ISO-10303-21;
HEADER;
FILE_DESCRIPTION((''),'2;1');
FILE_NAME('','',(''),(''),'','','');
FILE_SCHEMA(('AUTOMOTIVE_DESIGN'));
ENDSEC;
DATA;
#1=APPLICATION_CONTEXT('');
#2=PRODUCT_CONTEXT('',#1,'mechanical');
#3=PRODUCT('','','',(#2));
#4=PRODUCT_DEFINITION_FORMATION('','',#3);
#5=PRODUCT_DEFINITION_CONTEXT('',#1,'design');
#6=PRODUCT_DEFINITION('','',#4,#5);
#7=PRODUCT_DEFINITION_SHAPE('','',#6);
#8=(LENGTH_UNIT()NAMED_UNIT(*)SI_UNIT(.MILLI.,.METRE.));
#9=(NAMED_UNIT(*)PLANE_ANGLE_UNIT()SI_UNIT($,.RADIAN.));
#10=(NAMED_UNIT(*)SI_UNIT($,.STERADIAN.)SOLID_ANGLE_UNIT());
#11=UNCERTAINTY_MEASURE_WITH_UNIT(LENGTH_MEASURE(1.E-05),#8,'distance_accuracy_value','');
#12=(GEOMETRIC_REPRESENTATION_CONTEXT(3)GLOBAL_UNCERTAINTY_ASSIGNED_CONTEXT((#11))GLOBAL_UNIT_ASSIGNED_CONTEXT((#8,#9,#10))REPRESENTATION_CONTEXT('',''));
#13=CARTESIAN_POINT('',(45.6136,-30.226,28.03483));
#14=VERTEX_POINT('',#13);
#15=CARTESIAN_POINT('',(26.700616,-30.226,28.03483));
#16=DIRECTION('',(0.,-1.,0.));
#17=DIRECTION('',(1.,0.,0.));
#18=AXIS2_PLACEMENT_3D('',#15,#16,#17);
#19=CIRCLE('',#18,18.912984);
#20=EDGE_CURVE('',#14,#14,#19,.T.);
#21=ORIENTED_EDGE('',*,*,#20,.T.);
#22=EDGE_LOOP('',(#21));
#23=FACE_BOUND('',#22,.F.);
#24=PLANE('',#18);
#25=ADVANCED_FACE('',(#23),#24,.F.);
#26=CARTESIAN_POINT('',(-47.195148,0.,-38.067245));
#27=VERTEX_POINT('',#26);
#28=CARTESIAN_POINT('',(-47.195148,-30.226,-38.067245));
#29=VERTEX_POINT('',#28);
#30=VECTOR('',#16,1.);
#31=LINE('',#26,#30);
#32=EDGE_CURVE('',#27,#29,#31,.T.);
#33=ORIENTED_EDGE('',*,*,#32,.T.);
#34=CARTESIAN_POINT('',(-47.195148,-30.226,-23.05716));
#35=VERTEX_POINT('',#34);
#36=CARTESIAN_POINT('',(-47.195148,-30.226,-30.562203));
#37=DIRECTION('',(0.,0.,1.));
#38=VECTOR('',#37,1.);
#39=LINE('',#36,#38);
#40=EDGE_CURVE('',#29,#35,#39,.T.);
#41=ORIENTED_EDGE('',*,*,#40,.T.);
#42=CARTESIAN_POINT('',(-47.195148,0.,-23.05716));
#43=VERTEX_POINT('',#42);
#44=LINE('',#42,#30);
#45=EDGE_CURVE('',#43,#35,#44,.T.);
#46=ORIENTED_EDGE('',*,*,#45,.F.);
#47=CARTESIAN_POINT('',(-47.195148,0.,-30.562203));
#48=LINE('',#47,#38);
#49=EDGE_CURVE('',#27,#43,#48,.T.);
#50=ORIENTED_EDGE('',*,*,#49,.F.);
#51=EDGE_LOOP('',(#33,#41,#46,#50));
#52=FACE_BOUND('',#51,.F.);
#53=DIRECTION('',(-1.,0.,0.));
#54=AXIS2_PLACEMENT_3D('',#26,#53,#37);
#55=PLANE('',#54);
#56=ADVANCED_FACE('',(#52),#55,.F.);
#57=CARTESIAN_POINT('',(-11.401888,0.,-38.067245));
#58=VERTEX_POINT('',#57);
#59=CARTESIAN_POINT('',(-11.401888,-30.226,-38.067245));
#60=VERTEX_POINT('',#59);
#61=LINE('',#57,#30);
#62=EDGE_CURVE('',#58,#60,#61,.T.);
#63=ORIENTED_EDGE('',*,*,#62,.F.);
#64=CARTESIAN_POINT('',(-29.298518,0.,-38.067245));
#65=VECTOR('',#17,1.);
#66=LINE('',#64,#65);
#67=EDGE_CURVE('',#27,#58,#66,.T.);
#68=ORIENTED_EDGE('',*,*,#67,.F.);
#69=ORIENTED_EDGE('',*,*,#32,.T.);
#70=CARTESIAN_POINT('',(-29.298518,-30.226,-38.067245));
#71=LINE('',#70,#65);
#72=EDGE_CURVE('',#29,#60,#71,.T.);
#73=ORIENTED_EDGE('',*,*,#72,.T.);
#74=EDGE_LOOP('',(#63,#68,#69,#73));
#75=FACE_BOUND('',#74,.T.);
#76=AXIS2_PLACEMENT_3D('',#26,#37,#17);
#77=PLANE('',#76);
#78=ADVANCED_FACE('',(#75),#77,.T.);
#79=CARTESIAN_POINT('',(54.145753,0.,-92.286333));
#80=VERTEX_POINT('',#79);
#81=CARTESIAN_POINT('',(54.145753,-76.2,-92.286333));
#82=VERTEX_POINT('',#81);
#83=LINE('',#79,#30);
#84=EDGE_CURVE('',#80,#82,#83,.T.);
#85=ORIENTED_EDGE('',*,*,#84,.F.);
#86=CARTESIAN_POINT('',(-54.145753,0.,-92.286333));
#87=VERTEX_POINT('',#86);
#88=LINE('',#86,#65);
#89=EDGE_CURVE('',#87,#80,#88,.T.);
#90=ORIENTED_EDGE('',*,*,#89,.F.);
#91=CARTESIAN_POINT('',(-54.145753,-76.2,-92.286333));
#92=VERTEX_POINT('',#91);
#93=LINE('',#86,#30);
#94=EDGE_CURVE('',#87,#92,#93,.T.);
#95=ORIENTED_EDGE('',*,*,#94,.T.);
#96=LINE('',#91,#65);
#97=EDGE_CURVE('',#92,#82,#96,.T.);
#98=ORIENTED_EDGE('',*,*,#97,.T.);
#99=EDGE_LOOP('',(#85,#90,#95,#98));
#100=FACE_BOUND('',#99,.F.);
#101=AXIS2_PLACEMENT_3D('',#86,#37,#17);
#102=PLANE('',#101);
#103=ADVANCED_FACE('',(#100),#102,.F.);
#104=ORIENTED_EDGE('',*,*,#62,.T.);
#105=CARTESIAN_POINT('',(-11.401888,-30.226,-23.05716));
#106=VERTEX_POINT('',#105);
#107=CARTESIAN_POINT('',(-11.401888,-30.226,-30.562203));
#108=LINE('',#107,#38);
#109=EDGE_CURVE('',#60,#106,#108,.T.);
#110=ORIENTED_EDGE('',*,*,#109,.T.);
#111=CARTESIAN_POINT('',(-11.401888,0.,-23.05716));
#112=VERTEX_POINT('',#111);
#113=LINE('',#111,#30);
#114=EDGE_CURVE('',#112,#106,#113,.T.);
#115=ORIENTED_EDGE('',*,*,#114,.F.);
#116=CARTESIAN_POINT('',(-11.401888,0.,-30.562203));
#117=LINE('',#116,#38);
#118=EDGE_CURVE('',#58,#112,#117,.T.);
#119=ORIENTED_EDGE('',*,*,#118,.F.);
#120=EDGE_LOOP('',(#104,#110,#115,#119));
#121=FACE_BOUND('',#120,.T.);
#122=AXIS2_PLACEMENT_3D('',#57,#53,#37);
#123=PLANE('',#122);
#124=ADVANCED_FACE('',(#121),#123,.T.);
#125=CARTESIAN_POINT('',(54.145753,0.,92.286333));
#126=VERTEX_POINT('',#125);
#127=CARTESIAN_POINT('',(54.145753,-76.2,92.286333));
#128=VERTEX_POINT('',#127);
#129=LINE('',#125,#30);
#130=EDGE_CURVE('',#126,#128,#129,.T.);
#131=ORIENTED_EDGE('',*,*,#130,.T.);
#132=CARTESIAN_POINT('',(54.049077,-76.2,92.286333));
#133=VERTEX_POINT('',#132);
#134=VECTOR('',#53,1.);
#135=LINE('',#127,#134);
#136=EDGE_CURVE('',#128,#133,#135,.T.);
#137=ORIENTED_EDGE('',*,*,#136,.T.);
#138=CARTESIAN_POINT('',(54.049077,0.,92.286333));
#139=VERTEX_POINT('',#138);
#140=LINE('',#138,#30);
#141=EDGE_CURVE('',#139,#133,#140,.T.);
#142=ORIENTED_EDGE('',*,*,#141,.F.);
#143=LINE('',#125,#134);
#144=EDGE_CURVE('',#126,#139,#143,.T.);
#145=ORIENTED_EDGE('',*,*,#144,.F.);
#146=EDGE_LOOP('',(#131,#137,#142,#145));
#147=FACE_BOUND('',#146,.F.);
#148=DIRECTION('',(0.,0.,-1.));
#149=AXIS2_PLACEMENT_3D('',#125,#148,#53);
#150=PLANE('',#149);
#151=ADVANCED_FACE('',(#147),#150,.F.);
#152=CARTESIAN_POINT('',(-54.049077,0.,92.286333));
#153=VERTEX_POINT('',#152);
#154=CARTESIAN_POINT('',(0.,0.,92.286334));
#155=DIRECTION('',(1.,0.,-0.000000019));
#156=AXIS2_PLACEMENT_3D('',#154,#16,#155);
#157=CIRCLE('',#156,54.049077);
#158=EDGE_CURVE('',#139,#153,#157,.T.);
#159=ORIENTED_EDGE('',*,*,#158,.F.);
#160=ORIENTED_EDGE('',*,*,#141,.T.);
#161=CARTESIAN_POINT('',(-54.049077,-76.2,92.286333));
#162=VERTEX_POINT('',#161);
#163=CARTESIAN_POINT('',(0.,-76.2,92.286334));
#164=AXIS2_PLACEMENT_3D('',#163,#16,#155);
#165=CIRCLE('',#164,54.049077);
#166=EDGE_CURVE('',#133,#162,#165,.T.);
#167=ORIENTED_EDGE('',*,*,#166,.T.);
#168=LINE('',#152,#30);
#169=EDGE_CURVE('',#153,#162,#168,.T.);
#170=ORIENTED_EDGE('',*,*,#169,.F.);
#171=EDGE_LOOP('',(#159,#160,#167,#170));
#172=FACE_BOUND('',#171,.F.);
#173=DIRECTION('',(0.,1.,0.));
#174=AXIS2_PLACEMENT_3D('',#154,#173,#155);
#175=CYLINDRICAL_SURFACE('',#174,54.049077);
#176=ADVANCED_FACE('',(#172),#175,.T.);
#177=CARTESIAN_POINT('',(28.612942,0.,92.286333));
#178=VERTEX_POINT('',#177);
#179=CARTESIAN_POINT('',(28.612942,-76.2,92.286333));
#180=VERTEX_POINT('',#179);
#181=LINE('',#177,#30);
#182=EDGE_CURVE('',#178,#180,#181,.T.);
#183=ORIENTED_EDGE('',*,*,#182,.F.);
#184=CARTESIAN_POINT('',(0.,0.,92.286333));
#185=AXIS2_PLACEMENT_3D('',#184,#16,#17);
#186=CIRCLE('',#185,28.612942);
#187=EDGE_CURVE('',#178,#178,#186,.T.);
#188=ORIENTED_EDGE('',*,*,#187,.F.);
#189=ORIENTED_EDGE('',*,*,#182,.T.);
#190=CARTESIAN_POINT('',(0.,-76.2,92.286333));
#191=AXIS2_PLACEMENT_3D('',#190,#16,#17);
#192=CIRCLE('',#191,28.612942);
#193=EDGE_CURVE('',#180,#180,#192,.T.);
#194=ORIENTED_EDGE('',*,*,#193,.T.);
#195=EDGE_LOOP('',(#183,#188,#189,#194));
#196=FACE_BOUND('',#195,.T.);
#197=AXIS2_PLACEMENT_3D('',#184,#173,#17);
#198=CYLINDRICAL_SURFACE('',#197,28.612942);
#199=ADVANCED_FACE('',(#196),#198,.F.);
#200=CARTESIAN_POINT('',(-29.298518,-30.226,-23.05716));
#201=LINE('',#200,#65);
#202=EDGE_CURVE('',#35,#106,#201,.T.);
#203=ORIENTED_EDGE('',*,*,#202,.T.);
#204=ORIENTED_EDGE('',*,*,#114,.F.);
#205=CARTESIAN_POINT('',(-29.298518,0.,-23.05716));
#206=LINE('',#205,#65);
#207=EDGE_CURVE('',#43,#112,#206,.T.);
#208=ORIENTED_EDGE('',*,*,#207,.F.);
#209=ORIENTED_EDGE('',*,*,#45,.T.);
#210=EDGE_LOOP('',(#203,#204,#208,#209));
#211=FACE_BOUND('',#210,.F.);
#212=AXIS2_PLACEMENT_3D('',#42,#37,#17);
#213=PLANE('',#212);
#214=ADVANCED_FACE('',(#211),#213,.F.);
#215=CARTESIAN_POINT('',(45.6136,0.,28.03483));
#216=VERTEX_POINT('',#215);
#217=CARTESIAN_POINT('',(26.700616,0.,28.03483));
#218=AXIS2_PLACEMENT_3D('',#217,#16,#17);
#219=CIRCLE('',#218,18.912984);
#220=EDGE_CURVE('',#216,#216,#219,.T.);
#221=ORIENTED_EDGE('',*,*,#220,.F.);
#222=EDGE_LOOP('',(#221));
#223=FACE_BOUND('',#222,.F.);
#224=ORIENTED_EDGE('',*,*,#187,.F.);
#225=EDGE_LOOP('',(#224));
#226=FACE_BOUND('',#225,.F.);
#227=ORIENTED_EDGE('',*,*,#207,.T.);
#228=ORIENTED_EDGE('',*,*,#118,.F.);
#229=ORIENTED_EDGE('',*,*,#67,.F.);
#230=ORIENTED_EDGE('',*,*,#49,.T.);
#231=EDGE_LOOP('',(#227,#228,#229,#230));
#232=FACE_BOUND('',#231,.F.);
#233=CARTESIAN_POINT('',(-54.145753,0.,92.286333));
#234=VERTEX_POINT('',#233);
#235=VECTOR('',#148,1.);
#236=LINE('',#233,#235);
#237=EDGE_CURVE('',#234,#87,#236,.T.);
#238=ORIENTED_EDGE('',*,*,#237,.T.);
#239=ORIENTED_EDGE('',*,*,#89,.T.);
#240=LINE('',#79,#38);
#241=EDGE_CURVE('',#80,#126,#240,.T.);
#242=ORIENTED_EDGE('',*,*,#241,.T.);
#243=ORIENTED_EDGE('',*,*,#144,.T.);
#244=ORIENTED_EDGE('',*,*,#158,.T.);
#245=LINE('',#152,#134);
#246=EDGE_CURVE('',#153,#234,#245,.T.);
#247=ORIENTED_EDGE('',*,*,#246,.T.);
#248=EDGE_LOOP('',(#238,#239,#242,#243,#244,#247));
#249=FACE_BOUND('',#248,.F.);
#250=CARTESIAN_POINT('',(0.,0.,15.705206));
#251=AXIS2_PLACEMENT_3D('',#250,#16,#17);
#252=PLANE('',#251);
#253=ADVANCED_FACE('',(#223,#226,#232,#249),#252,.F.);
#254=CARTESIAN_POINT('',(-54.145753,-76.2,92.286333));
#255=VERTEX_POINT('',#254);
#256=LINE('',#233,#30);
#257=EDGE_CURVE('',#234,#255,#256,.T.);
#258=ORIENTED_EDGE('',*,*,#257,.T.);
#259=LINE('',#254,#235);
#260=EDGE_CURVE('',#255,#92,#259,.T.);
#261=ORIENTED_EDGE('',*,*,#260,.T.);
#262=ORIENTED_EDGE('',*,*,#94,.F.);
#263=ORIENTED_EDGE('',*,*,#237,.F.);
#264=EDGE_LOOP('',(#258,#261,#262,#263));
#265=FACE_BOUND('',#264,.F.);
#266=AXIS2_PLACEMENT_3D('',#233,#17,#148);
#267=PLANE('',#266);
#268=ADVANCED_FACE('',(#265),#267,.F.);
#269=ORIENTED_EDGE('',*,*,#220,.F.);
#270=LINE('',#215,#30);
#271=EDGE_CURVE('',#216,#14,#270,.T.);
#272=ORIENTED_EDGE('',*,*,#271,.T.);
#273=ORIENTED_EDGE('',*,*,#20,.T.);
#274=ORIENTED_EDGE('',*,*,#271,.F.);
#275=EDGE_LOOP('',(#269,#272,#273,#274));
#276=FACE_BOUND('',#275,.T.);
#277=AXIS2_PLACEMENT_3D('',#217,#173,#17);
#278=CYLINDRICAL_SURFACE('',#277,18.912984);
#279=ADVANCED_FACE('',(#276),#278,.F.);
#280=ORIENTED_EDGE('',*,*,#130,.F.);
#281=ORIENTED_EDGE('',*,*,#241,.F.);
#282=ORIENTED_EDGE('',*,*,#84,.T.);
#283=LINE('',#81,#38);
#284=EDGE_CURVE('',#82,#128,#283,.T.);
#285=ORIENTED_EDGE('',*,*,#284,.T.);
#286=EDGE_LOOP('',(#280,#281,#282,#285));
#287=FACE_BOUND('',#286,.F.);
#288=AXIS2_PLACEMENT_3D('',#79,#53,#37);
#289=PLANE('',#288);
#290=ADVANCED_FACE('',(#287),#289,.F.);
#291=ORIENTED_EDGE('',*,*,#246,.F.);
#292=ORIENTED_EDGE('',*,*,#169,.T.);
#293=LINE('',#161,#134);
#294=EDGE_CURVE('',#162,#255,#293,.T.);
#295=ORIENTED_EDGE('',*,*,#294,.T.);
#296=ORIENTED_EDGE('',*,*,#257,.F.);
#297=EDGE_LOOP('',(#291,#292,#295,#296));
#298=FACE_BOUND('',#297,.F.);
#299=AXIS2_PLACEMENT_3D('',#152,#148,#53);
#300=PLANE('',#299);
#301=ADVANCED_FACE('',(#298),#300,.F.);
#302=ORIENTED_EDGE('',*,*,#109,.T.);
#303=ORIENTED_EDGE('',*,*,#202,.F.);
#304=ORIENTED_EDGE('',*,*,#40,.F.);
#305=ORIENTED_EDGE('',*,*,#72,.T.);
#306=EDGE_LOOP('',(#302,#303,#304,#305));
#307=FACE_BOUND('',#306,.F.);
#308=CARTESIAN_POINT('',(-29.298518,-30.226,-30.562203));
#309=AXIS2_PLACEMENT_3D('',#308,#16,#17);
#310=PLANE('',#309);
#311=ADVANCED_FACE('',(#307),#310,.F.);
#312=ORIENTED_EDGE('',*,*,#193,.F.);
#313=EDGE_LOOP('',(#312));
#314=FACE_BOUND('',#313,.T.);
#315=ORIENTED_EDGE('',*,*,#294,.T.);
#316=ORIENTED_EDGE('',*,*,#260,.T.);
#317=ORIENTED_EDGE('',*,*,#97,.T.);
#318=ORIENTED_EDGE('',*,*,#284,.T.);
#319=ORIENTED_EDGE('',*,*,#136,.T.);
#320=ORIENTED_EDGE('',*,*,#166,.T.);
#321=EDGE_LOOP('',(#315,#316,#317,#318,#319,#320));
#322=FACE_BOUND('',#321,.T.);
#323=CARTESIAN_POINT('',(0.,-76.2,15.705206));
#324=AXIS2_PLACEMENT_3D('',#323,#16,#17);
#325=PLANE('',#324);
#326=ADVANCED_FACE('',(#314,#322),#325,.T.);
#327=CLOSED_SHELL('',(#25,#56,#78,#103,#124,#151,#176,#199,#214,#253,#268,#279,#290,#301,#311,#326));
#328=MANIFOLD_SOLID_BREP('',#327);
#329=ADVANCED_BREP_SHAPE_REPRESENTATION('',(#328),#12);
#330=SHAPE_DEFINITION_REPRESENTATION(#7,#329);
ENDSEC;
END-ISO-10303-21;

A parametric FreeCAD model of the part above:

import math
import FreeCAD as App
import Part
import Sketcher

V = App.Vector
Q = App.Units.Quantity


def add_polygon(sketch, points):
    """Adds a closed chain of lines whose ends are joined by coincident constraints."""
    first, n = sketch.GeometryCount, len(points)
    for a, b in zip(points, points[1:] + points[:1]):
        sketch.addGeometry(Part.LineSegment(App.Vector(*a, 0), App.Vector(*b, 0)), False)
    for i in range(n):
        sketch.addConstraint(Sketcher.Constraint("Coincident", first + i, 2, first + (i + 1) % n, 1))

doc = App.newDocument("Part")
body = doc.addObject("PartDesign::Body", "Body")

# Sketch on XZ plane
sketch1 = body.newObject("Sketcher::SketchObject", "Sketch")
sketch1.AttachmentSupport = (doc.getObject("XZ_Plane"), [""])
sketch1.MapMode = "FlatFace"
sketch1.addGeometry(Part.LineSegment(V(-54.05, 92.29, 0), V(-54.15, 92.29, 0)), False)
sketch1.addGeometry(Part.LineSegment(V(-54.15, 92.29, 0), V(-54.15, -92.29, 0)), False)
sketch1.addGeometry(Part.LineSegment(V(-54.15, -92.29, 0), V(54.15, -92.29, 0)), False)
sketch1.addGeometry(Part.LineSegment(V(54.15, -92.29, 0), V(54.15, 92.29, 0)), False)
sketch1.addGeometry(Part.LineSegment(V(54.15, 92.29, 0), V(54.05, 92.29, 0)), False)
sketch1.addGeometry(Part.ArcOfCircle(Part.Circle(V(0, 92.29, 0), V(0, 0, 1), 54.05), math.radians(0), math.radians(180)), False)
sketch1.addGeometry(Part.Circle(V(0, 92.29, 0), V(0, 0, 1), 28.61), False)
sketch1.addConstraint(Sketcher.Constraint("Coincident", 0, 2, 1, 1))
sketch1.addConstraint(Sketcher.Constraint("Coincident", 1, 2, 2, 1))
sketch1.addConstraint(Sketcher.Constraint("Coincident", 2, 2, 3, 1))
sketch1.addConstraint(Sketcher.Constraint("Coincident", 3, 2, 4, 1))
sketch1.addConstraint(Sketcher.Constraint("Coincident", 4, 2, 5, 1))
sketch1.addConstraint(Sketcher.Constraint("Coincident", 5, 2, 0, 1))
sketch1.addConstraint(Sketcher.Constraint("Horizontal", 0))
sketch1.addConstraint(Sketcher.Constraint("Vertical", 1))
sketch1.addConstraint(Sketcher.Constraint("Horizontal", 2))
sketch1.addConstraint(Sketcher.Constraint("Vertical", 3))
sketch1.addConstraint(Sketcher.Constraint("Horizontal", 4))
sketch1.addConstraint(Sketcher.Constraint("Coincident", 6, 3, 5, 3))
sketch1.addConstraint(Sketcher.Constraint("Symmetric", 0, 2, 2, 2, -1, 1))
sketch1.addConstraint(Sketcher.Constraint("Symmetric", 4, 2, 5, 2, -2))
sketch1.addConstraint(Sketcher.Constraint("Horizontal", 6, 3, 0, 2))
sketch1.addConstraint(Sketcher.Constraint("Diameter", 6, 57.225884))
sketch1.addConstraint(Sketcher.Constraint("Radius", 5, 54.049077))
sketch1.addConstraint(Sketcher.Constraint("DistanceX", 0, 2, 0, 1, 0.096676))
sketch1.addConstraint(Sketcher.Constraint("DistanceY", 1, 2, 1, 1, 184.572666))
pad1 = body.newObject("PartDesign::Pad", "Pad")
pad1.Profile = sketch1
pad1.Length = Q("3 in")

# Sketch on XZ plane
sketch2 = body.newObject("Sketcher::SketchObject", "Sketch001")
sketch2.AttachmentSupport = (doc.getObject("XZ_Plane"), [""])
sketch2.MapMode = "FlatFace"
add_polygon(sketch2, [(-47, -23), (-47, -38), (-11, -38), (-11, -23)])  # lines 0-3
sketch2.addGeometry(Part.Circle(V(27, 28, 0), V(0, 0, 1), 19), False)  # 4
sketch2.addConstraint(Sketcher.Constraint("Vertical", 0))
sketch2.addConstraint(Sketcher.Constraint("Horizontal", 1))
sketch2.addConstraint(Sketcher.Constraint("Vertical", 2))
sketch2.addConstraint(Sketcher.Constraint("Horizontal", 3))
sketch2.addConstraint(Sketcher.Constraint("Diameter", 4, 37.825968))
sketch2.addConstraint(Sketcher.Constraint("DistanceX", 1, 1, 1, 2, 35.79326))
sketch2.addConstraint(Sketcher.Constraint("DistanceY", 0, 2, 0, 1, 15.010085))
sketch2.addConstraint(Sketcher.Constraint("DistanceY", -1, 1, 4, 3, 28.03483))
sketch2.addConstraint(Sketcher.Constraint("DistanceX", 0, 2, -1, 1, 47.195148))
sketch2.addConstraint(Sketcher.Constraint("DistanceY", 2, 2, -1, 1, 23.05716))
sketch2.addConstraint(Sketcher.Constraint("DistanceX", -1, 1, 4, 3, 26.700616))
pocket1 = body.newObject("PartDesign::Pocket", "Pocket")
pocket1.Profile = sketch2
pocket1.Length = Q("1.19 in")
pocket1.Reversed = True

doc.recompute()
